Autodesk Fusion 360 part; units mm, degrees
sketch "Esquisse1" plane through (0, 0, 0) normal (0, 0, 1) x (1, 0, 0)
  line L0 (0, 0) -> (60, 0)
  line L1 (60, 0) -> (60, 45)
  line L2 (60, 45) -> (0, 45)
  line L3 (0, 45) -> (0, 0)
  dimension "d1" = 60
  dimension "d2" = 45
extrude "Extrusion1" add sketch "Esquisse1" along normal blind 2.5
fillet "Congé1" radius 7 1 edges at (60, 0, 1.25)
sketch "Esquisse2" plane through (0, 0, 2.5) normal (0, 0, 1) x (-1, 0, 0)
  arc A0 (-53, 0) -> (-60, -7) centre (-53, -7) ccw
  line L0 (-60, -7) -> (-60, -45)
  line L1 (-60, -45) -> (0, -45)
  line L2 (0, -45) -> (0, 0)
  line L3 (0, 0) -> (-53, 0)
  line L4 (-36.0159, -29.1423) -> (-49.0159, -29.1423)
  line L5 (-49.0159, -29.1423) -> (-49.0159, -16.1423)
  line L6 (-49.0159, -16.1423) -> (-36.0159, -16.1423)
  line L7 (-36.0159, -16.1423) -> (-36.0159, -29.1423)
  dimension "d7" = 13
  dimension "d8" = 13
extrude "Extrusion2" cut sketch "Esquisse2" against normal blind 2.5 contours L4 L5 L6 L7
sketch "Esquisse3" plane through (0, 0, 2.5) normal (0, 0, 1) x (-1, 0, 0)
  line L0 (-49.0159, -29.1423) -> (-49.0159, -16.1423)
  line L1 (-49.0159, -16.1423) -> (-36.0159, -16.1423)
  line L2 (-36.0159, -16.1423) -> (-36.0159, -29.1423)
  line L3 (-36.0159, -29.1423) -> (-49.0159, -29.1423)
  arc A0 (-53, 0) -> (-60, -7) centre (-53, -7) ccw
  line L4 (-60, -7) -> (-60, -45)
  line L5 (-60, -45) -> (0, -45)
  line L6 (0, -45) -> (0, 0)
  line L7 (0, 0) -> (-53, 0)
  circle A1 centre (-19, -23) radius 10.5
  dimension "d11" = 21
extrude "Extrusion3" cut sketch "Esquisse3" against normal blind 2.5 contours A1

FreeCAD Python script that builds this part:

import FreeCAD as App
import Part
import Sketcher
Q = App.Units.Quantity


def edges_at(feature, points):
    """Names of the edges that pass closest to the given points."""
    edges = feature.Shape.Edges
    near = lambda p: min(range(len(edges)), key=lambda i: edges[i].distToShape(Part.Vertex(*p))[0])
    return sorted({f"Edge{near(p) + 1}" for p in points})


def add_polygon(sketch, points):
    """Adds a closed chain of lines whose ends are joined by coincident constraints."""
    first, n = sketch.GeometryCount, len(points)
    for a, b in zip(points, points[1:] + points[:1]):
        sketch.addGeometry(Part.LineSegment(App.Vector(*a, 0), App.Vector(*b, 0)), False)
    for i in range(n):
        sketch.addConstraint(Sketcher.Constraint("Coincident", first + i, 2, first + (i + 1) % n, 1))

doc = App.newDocument("Part")
params = doc.addObject("Spreadsheet::Sheet", "Params")
for row, (alias, value) in enumerate([
    ("sketch1_width", "60 mm"),
    ("sketch1_height", "45 mm"),
    ("pad1_length", "2.5 mm"),
    ("fillet_radius", "7 mm"),
    ("sketch2_width", "13 mm"),
    ("pocket1_length", "2.5 mm"),
    ("sketch3_diameter", "21 mm"),
    ("pocket2_length", "2.5 mm"),
], start=1):
    params.set(f"A{row}", alias)
    params.set(f"B{row}", "=" + value)
    params.setAlias(f"B{row}", alias)

body = doc.addObject("PartDesign::Body", "Body")

# Sketch on XY plane
sketch1 = doc.addObject("Sketcher::SketchObject", "Sketch")
body.addObject(sketch1)
sketch1.AttachmentSupport = (doc.XY_Plane, [""])
sketch1.MapMode = "FlatFace"
add_polygon(sketch1, [(0, 45), (0, 0), (60, 0), (60, 45)])  # lines 0-3
sketch1.addConstraint([
    Sketcher.Constraint("Vertical", 0),
    Sketcher.Constraint("Horizontal", 1),
    Sketcher.Constraint("Vertical", 2),
    Sketcher.Constraint("Horizontal", 3),
    Sketcher.Constraint("Coincident", 0, 2, -1, 1),
    Sketcher.Constraint("DistanceX", 1, 1, 1, 2, Q("60 mm")),
    Sketcher.Constraint("DistanceY", 0, 2, 0, 1, Q("45 mm")),
])
sketch1.setExpression("Constraints[9]", "Params.sketch1_width")
sketch1.setExpression("Constraints[10]", "Params.sketch1_height")
pad1 = doc.addObject("PartDesign::Pad", "Pad")
body.addObject(pad1)
pad1.Profile = sketch1
pad1.setExpression("Length", "Params.pad1_length")
doc.recompute()

fillet = doc.addObject("PartDesign::Fillet", "Fillet")
body.addObject(fillet)
fillet.Base = (pad1, edges_at(pad1, [(60, 0, 1.25)]))
fillet.setExpression("Radius", "Params.fillet_radius")

# Sketch on XY plane
sketch2 = doc.addObject("Sketcher::SketchObject", "Sketch001")
body.addObject(sketch2)
sketch2.AttachmentSupport = (doc.XY_Plane, [""])
sketch2.MapMode = "FlatFace"
sketch2.AttachmentOffset = App.Placement(App.Vector(0, 0, 2.5), App.Rotation())
add_polygon(sketch2, [(49, 29), (36, 29), (36, 16), (49, 16)])  # lines 0-3
sketch2.addConstraint([
    Sketcher.Constraint("Horizontal", 0),
    Sketcher.Constraint("Vertical", 1),
    Sketcher.Constraint("Horizontal", 2),
    Sketcher.Constraint("Vertical", 3),
    Sketcher.Constraint("Equal", 2, 1),
    Sketcher.Constraint("DistanceX", 0, 2, 0, 1, Q("13 mm")),
    Sketcher.Constraint("DistanceX", -1, 1, 0, 2, Q("36.016 mm")),
    Sketcher.Constraint("DistanceY", -1, 1, 0, 2, Q("29.1423 mm")),
])
sketch2.setExpression("Constraints[9]", "Params.sketch2_width")
pocket1 = doc.addObject("PartDesign::Pocket", "Pocket")
body.addObject(pocket1)
pocket1.Profile = sketch2
pocket1.setExpression("Length", "Params.pocket1_length")

# Sketch on XY plane
sketch3 = doc.addObject("Sketcher::SketchObject", "Sketch002")
body.addObject(sketch3)
sketch3.AttachmentSupport = (doc.XY_Plane, [""])
sketch3.MapMode = "FlatFace"
sketch3.AttachmentOffset = App.Placement(App.Vector(0, 0, 2.5), App.Rotation())
sketch3.addGeometry(Part.Circle(App.Vector(19, 23, 0), App.Vector(0, 0, 1), 10), False)
sketch3.addConstraint([
    Sketcher.Constraint("Diameter", 0, Q("21 mm")),
    Sketcher.Constraint("DistanceX", -1, 1, 0, 3, Q("19 mm")),
    Sketcher.Constraint("DistanceY", -1, 1, 0, 3, Q("23 mm")),
])
sketch3.setExpression("Constraints[0]", "Params.sketch3_diameter")
pocket2 = doc.addObject("PartDesign::Pocket", "Pocket001")
body.addObject(pocket2)
pocket2.Profile = sketch3
pocket2.setExpression("Length", "Params.pocket2_length")

doc.recompute()
